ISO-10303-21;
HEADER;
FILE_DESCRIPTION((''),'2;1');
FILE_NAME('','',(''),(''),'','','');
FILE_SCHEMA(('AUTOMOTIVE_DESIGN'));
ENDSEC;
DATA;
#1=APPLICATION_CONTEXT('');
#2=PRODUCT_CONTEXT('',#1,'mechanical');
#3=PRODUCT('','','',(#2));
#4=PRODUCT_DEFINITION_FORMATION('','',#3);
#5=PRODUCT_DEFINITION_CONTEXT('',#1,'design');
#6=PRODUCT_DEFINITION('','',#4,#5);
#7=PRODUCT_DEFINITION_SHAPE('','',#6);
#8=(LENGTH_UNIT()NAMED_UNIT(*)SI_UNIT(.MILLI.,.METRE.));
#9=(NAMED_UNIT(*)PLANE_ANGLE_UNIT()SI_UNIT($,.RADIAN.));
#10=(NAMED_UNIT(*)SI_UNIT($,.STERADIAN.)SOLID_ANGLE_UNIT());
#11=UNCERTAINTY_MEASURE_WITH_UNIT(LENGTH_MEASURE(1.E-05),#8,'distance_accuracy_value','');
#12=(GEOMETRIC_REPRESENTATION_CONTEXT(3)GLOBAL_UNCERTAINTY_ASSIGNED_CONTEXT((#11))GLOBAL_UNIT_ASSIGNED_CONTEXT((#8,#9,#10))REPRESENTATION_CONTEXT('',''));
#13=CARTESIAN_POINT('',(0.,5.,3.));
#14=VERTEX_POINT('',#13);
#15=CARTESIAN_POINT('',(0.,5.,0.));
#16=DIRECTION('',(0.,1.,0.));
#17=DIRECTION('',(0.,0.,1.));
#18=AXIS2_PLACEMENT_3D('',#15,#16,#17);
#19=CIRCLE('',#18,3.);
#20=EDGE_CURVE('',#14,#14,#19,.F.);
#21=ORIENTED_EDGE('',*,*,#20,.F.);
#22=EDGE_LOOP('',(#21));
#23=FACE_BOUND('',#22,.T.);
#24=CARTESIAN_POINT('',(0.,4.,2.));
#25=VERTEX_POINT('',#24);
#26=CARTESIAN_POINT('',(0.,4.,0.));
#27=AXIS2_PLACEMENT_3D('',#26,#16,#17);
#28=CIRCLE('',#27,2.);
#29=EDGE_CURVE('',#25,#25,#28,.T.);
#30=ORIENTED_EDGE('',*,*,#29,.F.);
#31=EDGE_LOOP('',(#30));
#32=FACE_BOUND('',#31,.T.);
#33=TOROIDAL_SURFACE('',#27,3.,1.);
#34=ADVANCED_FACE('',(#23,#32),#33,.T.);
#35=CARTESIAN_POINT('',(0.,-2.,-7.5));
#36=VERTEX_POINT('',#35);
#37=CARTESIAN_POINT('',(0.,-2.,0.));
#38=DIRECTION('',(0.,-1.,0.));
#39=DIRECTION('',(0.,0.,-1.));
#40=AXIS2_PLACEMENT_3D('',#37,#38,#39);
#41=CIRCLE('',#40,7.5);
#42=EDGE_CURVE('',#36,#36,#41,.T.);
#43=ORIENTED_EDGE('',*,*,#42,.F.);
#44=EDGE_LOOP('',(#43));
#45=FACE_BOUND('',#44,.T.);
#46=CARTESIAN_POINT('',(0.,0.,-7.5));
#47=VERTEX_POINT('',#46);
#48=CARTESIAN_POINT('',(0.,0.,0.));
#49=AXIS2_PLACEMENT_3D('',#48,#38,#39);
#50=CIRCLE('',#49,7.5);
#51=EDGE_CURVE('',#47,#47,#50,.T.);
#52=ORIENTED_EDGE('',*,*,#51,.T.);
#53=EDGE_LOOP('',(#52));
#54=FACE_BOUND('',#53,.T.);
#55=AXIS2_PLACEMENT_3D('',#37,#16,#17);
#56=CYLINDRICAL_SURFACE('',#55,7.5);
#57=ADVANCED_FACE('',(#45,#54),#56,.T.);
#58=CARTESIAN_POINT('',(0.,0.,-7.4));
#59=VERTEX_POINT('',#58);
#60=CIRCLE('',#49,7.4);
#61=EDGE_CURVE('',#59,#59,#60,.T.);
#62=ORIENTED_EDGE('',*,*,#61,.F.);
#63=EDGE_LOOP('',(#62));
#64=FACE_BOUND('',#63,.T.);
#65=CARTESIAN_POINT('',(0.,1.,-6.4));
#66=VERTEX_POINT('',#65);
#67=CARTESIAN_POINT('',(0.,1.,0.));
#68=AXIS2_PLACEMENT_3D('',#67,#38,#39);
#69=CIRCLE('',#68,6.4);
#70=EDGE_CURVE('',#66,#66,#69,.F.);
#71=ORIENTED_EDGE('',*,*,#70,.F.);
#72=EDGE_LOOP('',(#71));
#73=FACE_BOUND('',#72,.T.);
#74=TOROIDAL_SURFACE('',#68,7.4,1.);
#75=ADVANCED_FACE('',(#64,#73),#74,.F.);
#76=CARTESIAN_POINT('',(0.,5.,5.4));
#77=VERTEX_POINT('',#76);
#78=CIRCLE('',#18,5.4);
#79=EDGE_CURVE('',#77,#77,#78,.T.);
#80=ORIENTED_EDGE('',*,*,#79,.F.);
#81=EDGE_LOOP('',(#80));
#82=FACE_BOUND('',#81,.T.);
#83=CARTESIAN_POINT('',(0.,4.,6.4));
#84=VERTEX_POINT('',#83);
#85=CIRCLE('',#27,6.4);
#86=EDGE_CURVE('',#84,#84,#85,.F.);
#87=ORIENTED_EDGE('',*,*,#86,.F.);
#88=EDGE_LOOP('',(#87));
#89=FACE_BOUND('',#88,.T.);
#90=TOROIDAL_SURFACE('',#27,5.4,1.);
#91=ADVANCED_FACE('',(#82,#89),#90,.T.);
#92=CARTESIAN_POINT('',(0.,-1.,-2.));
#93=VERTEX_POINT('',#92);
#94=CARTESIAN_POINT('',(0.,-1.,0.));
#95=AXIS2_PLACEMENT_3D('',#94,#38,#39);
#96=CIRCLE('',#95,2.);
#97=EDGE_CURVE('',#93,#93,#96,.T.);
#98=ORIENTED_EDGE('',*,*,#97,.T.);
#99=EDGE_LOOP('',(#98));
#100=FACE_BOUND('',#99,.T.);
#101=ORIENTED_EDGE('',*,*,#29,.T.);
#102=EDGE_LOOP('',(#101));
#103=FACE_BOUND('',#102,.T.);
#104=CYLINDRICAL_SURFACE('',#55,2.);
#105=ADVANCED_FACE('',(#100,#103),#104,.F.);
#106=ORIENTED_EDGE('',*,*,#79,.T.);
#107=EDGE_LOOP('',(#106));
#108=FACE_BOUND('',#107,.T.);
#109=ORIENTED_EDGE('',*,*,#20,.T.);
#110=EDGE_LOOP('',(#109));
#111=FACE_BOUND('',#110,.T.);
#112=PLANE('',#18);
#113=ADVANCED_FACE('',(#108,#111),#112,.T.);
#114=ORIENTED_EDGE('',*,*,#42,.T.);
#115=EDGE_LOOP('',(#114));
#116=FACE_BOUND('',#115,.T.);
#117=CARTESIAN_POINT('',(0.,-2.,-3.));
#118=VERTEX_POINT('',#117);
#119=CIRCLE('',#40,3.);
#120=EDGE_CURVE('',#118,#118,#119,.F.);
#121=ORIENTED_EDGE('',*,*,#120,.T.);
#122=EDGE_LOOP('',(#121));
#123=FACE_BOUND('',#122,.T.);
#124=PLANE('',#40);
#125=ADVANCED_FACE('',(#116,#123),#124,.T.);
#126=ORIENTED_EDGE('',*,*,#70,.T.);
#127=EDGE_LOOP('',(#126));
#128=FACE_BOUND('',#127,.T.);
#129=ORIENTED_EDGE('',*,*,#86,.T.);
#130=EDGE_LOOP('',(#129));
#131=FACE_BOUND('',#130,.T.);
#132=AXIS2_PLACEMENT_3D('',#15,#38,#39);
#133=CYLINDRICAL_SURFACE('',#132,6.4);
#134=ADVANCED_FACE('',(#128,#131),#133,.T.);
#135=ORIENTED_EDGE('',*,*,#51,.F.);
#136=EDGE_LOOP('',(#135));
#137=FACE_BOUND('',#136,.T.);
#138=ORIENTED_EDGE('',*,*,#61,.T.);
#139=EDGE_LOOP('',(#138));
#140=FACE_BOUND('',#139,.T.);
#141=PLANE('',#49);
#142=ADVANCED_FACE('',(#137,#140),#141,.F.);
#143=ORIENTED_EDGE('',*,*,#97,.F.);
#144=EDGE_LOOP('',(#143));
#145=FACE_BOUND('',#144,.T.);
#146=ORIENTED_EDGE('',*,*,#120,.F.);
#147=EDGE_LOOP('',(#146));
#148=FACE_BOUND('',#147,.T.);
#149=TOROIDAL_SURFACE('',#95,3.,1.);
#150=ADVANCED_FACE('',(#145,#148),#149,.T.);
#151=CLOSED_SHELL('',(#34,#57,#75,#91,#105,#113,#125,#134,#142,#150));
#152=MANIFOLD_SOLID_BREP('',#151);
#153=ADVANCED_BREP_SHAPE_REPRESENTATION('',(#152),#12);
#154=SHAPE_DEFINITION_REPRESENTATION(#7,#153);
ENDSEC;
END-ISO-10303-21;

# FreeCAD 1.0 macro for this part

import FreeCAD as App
import Part
import Sketcher
Q = App.Units.Quantity


def edges_at(feature, points):
    """Names of the edges that pass closest to the given points."""
    edges = feature.Shape.Edges
    near = lambda p: min(range(len(edges)), key=lambda i: edges[i].distToShape(Part.Vertex(*p))[0])
    return sorted({f"Edge{near(p) + 1}" for p in points})

doc = App.newDocument("Part")
params = doc.addObject("Spreadsheet::Sheet", "Params")
for row, (alias, value) in enumerate([
    ("sketch1_diameter", "12.8 mm"),
    ("pad1_length", "5 mm"),
    ("sketch2_diameter", "15 mm"),
    ("pad2_length", "2 mm"),
    ("sketch3_diameter", "4 mm"),
    ("fillet_radius", "1 mm"),
    ("fillet2_radius", "1 mm"),
    ("fillet3_radius", "1 mm"),
], start=1):
    params.set(f"A{row}", alias)
    params.set(f"B{row}", "=" + value)
    params.setAlias(f"B{row}", alias)

body = doc.addObject("PartDesign::Body", "Body")

sketch1 = doc.addObject("Sketcher::SketchObject", "Sketch")
body.addObject(sketch1)
sketch1.AttachmentSupport = (doc.XZ_Plane, [""])
sketch1.MapMode = "FlatFace"
sketch1.addGeometry(Part.Circle(App.Vector(0, 0, 0), App.Vector(0, 0, 1), 6), False)
sketch1.addConstraint(Sketcher.Constraint("Coincident", 0, 3, -1, 1))
sketch1.addConstraint(Sketcher.Constraint("Diameter", 0, Q("12.8 mm")))
sketch1.setExpression("Constraints[1]", "Params.sketch1_diameter")
pad1 = doc.addObject("PartDesign::Pad", "Pad")
body.addObject(pad1)
pad1.Profile = sketch1
pad1.setExpression("Length", "Params.pad1_length")
pad1.Reversed = True

sketch2 = doc.addObject("Sketcher::SketchObject", "Sketch001")
body.addObject(sketch2)
sketch2.AttachmentSupport = (doc.XZ_Plane, [""])
sketch2.MapMode = "FlatFace"
sketch2.addGeometry(Part.Circle(App.Vector(0, 0, 0), App.Vector(0, 0, 1), 8), False)
sketch2.addConstraint(Sketcher.Constraint("Coincident", 0, 3, -1, 1))
sketch2.addConstraint(Sketcher.Constraint("Diameter", 0, Q("15 mm")))
sketch2.setExpression("Constraints[1]", "Params.sketch2_diameter")
pad2 = doc.addObject("PartDesign::Pad", "Pad001")
body.addObject(pad2)
pad2.Profile = sketch2
pad2.setExpression("Length", "Params.pad2_length")

sketch3 = doc.addObject("Sketcher::SketchObject", "Sketch002")
body.addObject(sketch3)
sketch3.AttachmentSupport = (doc.XZ_Plane, [""])
sketch3.MapMode = "FlatFace"
sketch3.AttachmentOffset = App.Placement(App.Vector(0, 0, -5), App.Rotation())
sketch3.addGeometry(Part.Circle(App.Vector(0, 0, 0), App.Vector(0, 0, 1), 2), False)
sketch3.addConstraint(Sketcher.Constraint("Coincident", 0, 3, -1, 1))
sketch3.addConstraint(Sketcher.Constraint("Diameter", 0, Q("4 mm")))
sketch3.setExpression("Constraints[1]", "Params.sketch3_diameter")
pocket1 = doc.addObject("PartDesign::Pocket", "Pocket")
body.addObject(pocket1)
pocket1.Profile = sketch3
pocket1.Type = "ThroughAll"
pocket1.Reversed = True
doc.recompute()

fillet = doc.addObject("PartDesign::Fillet", "Fillet")
body.addObject(fillet)
fillet.Base = (pocket1, edges_at(pocket1, [(-2, 5, 0), (-6.4, 5, 0)]))
fillet.setExpression("Radius", "Params.fillet_radius")
doc.recompute()

fillet2 = doc.addObject("PartDesign::Fillet", "Fillet001")
body.addObject(fillet2)
fillet2.Base = (fillet, edges_at(fillet, [(-6.4, 0, 0)]))
fillet2.setExpression("Radius", "Params.fillet2_radius")
doc.recompute()

fillet3 = doc.addObject("PartDesign::Fillet", "Fillet002")
body.addObject(fillet3)
fillet3.Base = (fillet2, edges_at(fillet2, [(-2, -2, 0)]))
fillet3.setExpression("Radius", "Params.fillet3_radius")

doc.recompute()
